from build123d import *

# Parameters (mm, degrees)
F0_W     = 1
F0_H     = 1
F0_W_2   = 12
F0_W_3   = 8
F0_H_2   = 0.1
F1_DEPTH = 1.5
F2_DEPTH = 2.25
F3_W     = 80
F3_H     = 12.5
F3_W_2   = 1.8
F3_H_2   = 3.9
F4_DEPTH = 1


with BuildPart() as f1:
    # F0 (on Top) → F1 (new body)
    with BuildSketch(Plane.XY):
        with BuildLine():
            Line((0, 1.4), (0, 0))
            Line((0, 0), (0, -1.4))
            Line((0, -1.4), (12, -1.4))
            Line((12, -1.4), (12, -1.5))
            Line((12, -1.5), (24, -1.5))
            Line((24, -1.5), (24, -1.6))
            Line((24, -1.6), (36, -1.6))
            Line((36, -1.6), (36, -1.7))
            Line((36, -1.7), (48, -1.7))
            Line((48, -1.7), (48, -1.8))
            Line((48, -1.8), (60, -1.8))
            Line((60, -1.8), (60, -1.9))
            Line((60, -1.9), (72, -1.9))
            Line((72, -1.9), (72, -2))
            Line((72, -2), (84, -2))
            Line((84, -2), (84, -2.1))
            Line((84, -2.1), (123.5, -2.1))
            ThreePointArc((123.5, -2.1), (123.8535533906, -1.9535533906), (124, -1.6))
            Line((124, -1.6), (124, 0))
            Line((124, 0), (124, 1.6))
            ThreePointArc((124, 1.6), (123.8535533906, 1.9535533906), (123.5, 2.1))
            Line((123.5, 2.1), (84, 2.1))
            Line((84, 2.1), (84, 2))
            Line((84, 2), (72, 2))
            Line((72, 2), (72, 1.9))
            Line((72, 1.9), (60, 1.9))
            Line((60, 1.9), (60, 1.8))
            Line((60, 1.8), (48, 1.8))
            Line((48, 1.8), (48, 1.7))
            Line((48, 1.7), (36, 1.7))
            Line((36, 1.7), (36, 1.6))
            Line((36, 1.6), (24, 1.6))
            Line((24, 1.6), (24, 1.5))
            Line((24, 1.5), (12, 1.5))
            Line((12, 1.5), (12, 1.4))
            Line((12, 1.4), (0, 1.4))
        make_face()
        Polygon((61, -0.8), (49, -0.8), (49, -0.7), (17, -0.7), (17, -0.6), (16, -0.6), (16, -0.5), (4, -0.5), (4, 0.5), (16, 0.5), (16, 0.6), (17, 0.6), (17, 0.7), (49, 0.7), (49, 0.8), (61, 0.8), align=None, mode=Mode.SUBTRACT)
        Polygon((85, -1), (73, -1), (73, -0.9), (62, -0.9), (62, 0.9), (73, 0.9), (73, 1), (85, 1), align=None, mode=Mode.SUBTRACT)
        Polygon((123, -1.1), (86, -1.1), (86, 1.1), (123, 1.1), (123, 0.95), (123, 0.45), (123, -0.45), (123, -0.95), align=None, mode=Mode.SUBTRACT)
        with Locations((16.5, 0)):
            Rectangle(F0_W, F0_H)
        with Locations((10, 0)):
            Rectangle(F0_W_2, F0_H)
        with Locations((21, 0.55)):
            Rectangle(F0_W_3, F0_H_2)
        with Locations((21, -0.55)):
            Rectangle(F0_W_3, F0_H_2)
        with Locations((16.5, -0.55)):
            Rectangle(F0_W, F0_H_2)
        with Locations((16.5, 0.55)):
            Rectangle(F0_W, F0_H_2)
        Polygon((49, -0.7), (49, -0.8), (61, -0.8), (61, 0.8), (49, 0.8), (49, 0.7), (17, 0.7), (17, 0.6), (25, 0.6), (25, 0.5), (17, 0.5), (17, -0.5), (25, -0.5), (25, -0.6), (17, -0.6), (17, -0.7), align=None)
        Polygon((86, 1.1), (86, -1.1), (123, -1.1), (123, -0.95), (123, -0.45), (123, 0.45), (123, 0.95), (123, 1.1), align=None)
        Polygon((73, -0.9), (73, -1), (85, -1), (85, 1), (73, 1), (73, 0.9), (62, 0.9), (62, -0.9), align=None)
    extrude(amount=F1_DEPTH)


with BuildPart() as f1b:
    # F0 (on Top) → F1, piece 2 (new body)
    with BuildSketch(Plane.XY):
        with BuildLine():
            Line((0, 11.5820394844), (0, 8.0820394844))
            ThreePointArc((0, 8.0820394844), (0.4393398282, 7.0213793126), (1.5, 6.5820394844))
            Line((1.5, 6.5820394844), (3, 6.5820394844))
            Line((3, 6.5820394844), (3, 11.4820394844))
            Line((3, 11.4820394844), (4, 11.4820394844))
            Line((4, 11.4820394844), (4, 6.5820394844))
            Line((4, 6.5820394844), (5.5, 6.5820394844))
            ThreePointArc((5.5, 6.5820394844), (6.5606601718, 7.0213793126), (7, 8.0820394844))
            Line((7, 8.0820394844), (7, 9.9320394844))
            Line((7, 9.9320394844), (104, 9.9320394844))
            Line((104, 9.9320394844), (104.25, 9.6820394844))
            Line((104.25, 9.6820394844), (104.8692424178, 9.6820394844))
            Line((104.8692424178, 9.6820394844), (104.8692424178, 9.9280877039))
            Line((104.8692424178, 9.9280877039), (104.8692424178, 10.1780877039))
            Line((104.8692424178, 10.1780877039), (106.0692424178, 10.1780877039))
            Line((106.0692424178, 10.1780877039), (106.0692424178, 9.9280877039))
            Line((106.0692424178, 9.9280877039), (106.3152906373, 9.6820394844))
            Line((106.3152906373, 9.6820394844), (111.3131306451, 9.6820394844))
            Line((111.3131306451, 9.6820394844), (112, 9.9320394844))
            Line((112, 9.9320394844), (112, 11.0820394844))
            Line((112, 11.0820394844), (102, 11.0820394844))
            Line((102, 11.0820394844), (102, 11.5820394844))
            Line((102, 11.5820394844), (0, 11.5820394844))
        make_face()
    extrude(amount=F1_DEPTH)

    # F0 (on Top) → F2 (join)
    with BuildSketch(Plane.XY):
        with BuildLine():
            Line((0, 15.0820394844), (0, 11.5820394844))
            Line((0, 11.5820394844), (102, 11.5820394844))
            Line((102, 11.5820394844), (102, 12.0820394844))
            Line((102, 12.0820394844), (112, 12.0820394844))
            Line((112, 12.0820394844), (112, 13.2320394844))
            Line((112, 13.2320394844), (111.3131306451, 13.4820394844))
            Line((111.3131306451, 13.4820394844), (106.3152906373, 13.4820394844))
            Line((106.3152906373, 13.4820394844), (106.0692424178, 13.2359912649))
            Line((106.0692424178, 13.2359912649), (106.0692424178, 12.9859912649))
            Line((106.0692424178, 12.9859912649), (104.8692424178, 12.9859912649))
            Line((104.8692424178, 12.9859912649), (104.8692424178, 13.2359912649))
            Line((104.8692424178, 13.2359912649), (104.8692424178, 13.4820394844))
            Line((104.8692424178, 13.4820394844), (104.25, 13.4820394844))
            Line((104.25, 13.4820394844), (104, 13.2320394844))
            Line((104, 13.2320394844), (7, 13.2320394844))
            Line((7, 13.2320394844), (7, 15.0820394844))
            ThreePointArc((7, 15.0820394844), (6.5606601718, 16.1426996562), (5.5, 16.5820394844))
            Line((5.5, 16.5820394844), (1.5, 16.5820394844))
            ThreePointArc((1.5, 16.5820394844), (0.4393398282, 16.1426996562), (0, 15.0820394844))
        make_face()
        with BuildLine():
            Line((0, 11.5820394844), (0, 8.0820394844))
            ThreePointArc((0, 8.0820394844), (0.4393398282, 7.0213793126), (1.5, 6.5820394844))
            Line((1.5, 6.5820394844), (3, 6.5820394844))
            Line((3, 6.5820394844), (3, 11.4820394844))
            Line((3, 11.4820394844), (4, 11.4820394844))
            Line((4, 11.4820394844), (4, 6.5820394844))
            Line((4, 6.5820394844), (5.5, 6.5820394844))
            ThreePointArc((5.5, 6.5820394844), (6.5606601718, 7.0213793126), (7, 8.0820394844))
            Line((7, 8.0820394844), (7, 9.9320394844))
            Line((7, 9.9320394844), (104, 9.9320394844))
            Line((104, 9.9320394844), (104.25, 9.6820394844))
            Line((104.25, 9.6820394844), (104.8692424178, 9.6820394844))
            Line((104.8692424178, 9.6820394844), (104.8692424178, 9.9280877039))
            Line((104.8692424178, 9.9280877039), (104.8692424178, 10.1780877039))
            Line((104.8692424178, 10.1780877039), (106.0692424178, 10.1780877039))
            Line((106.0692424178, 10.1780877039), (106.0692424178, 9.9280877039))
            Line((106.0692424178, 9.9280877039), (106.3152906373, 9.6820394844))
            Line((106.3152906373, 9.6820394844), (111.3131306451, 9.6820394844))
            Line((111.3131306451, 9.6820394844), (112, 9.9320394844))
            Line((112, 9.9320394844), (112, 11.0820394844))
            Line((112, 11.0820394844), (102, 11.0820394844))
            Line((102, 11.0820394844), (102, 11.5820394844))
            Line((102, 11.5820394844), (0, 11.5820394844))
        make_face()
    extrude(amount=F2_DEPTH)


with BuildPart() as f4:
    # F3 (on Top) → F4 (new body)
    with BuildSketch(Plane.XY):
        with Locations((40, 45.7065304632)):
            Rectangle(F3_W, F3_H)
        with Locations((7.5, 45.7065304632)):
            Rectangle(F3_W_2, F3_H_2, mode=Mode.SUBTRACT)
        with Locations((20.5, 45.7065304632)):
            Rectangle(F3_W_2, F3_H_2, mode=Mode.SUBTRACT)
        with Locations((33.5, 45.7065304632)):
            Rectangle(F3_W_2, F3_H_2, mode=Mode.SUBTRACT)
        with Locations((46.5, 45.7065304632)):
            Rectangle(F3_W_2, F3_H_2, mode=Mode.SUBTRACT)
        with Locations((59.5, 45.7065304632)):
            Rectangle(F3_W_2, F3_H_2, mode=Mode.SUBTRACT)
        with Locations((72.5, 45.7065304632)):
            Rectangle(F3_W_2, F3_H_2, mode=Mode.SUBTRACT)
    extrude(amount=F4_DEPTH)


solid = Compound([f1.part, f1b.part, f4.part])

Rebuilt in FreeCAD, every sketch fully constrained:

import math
import FreeCAD as App
import Part
import Sketcher
Q = App.Units.Quantity


def add_polygon(sketch, points):
    """Adds a closed chain of lines whose ends are joined by coincident constraints."""
    first, n = sketch.GeometryCount, len(points)
    for a, b in zip(points, points[1:] + points[:1]):
        sketch.addGeometry(Part.LineSegment(App.Vector(*a, 0), App.Vector(*b, 0)), False)
    for i in range(n):
        sketch.addConstraint(Sketcher.Constraint("Coincident", first + i, 2, first + (i + 1) % n, 1))

doc = App.newDocument("Part")
body = doc.addObject("PartDesign::Body", "Body")

# Sketch on XY plane
sketch1 = body.newObject("Sketcher::SketchObject", "Sketch")
sketch1.AttachmentSupport = (doc.getObject("XY_Plane"), [""])
sketch1.MapMode = "FlatFace"
sketch1.addGeometry(Part.LineSegment(App.Vector(0, 1.4, 0), App.Vector(0, -1.4, 0)), False)
sketch1.addGeometry(Part.LineSegment(App.Vector(0, -1.4, 0), App.Vector(12, -1.4, 0)), False)
sketch1.addGeometry(Part.LineSegment(App.Vector(12, -1.4, 0), App.Vector(12, -1.5, 0)), False)
sketch1.addGeometry(Part.LineSegment(App.Vector(12, -1.5, 0), App.Vector(24, -1.5, 0)), False)
sketch1.addGeometry(Part.LineSegment(App.Vector(24, -1.5, 0), App.Vector(24, -1.6, 0)), False)
sketch1.addGeometry(Part.LineSegment(App.Vector(24, -1.6, 0), App.Vector(36, -1.6, 0)), False)
sketch1.addGeometry(Part.LineSegment(App.Vector(36, -1.6, 0), App.Vector(36, -1.7, 0)), False)
sketch1.addGeometry(Part.LineSegment(App.Vector(36, -1.7, 0), App.Vector(48, -1.7, 0)), False)
sketch1.addGeometry(Part.LineSegment(App.Vector(48, -1.7, 0), App.Vector(48, -1.8, 0)), False)
sketch1.addGeometry(Part.LineSegment(App.Vector(48, -1.8, 0), App.Vector(60, -1.8, 0)), False)
sketch1.addGeometry(Part.LineSegment(App.Vector(60, -1.8, 0), App.Vector(60, -1.9, 0)), False)
sketch1.addGeometry(Part.LineSegment(App.Vector(60, -1.9, 0), App.Vector(72, -1.9, 0)), False)
sketch1.addGeometry(Part.LineSegment(App.Vector(72, -1.9, 0), App.Vector(72, -2, 0)), False)
sketch1.addGeometry(Part.LineSegment(App.Vector(72, -2, 0), App.Vector(84, -2, 0)), False)
sketch1.addGeometry(Part.LineSegment(App.Vector(84, -2, 0), App.Vector(84, -2.1, 0)), False)
sketch1.addGeometry(Part.LineSegment(App.Vector(84, -2.1, 0), App.Vector(123.5, -2.1, 0)), False)
sketch1.addGeometry(Part.ArcOfCircle(Part.Circle(App.Vector(123.5, -1.6, 0), App.Vector(0, 0, 1), 0.5), math.radians(-90), math.radians(0)), False)
sketch1.addGeometry(Part.LineSegment(App.Vector(124, -1.6, 0), App.Vector(124, 1.6, 0)), False)
sketch1.addGeometry(Part.ArcOfCircle(Part.Circle(App.Vector(123.5, 1.6, 0), App.Vector(0, 0, 1), 0.5), math.radians(0), math.radians(90)), False)
sketch1.addGeometry(Part.LineSegment(App.Vector(123.5, 2.1, 0), App.Vector(84, 2.1, 0)), False)
sketch1.addGeometry(Part.LineSegment(App.Vector(84, 2.1, 0), App.Vector(84, 2, 0)), False)
sketch1.addGeometry(Part.LineSegment(App.Vector(84, 2, 0), App.Vector(72, 2, 0)), False)
sketch1.addGeometry(Part.LineSegment(App.Vector(72, 2, 0), App.Vector(72, 1.9, 0)), False)
sketch1.addGeometry(Part.LineSegment(App.Vector(72, 1.9, 0), App.Vector(60, 1.9, 0)), False)
sketch1.addGeometry(Part.LineSegment(App.Vector(60, 1.9, 0), App.Vector(60, 1.8, 0)), False)
sketch1.addGeometry(Part.LineSegment(App.Vector(60, 1.8, 0), App.Vector(48, 1.8, 0)), False)
sketch1.addGeometry(Part.LineSegment(App.Vector(48, 1.8, 0), App.Vector(48, 1.7, 0)), False)
sketch1.addGeometry(Part.LineSegment(App.Vector(48, 1.7, 0), App.Vector(36, 1.7, 0)), False)
sketch1.addGeometry(Part.LineSegment(App.Vector(36, 1.7, 0), App.Vector(36, 1.6, 0)), False)
sketch1.addGeometry(Part.LineSegment(App.Vector(36, 1.6, 0), App.Vector(24, 1.6, 0)), False)
sketch1.addGeometry(Part.LineSegment(App.Vector(24, 1.6, 0), App.Vector(24, 1.5, 0)), False)
sketch1.addGeometry(Part.LineSegment(App.Vector(24, 1.5, 0), App.Vector(12, 1.5, 0)), False)
sketch1.addGeometry(Part.LineSegment(App.Vector(12, 1.5, 0), App.Vector(12, 1.4, 0)), False)
sketch1.addGeometry(Part.LineSegment(App.Vector(12, 1.4, 0), App.Vector(0, 1.4, 0)), False)
sketch1.addConstraint(Sketcher.Constraint("Coincident", 0, 2, 1, 1))
sketch1.addConstraint(Sketcher.Constraint("Coincident", 1, 2, 2, 1))
sketch1.addConstraint(Sketcher.Constraint("Coincident", 2, 2, 3, 1))
sketch1.addConstraint(Sketcher.Constraint("Coincident", 3, 2, 4, 1))
sketch1.addConstraint(Sketcher.Constraint("Coincident", 4, 2, 5, 1))
sketch1.addConstraint(Sketcher.Constraint("Coincident", 5, 2, 6, 1))
sketch1.addConstraint(Sketcher.Constraint("Coincident", 6, 2, 7, 1))
sketch1.addConstraint(Sketcher.Constraint("Coincident", 7, 2, 8, 1))
sketch1.addConstraint(Sketcher.Constraint("Coincident", 8, 2, 9, 1))
sketch1.addConstraint(Sketcher.Constraint("Coincident", 9, 2, 10, 1))
sketch1.addConstraint(Sketcher.Constraint("Coincident", 10, 2, 11, 1))
sketch1.addConstraint(Sketcher.Constraint("Coincident", 11, 2, 12, 1))
sketch1.addConstraint(Sketcher.Constraint("Coincident", 12, 2, 13, 1))
sketch1.addConstraint(Sketcher.Constraint("Coincident", 13, 2, 14, 1))
sketch1.addConstraint(Sketcher.Constraint("Coincident", 14, 2, 15, 1))
sketch1.addConstraint(Sketcher.Constraint("Tangent", 15, 2, 16, 1))
sketch1.addConstraint(Sketcher.Constraint("Tangent", 16, 2, 17, 1))
sketch1.addConstraint(Sketcher.Constraint("Tangent", 17, 2, 18, 1))
sketch1.addConstraint(Sketcher.Constraint("Tangent", 18, 2, 19, 1))
sketch1.addConstraint(Sketcher.Constraint("Coincident", 19, 2, 20, 1))
sketch1.addConstraint(Sketcher.Constraint("Coincident", 20, 2, 21, 1))
sketch1.addConstraint(Sketcher.Constraint("Coincident", 21, 2, 22, 1))
sketch1.addConstraint(Sketcher.Constraint("Coincident", 22, 2, 23, 1))
sketch1.addConstraint(Sketcher.Constraint("Coincident", 23, 2, 24, 1))
sketch1.addConstraint(Sketcher.Constraint("Coincident", 24, 2, 25, 1))
sketch1.addConstraint(Sketcher.Constraint("Coincident", 25, 2, 26, 1))
sketch1.addConstraint(Sketcher.Constraint("Coincident", 26, 2, 27, 1))
sketch1.addConstraint(Sketcher.Constraint("Coincident", 27, 2, 28, 1))
sketch1.addConstraint(Sketcher.Constraint("Coincident", 28, 2, 29, 1))
sketch1.addConstraint(Sketcher.Constraint("Coincident", 29, 2, 30, 1))
sketch1.addConstraint(Sketcher.Constraint("Coincident", 30, 2, 31, 1))
sketch1.addConstraint(Sketcher.Constraint("Coincident", 31, 2, 32, 1))
sketch1.addConstraint(Sketcher.Constraint("Coincident", 32, 2, 33, 1))
sketch1.addConstraint(Sketcher.Constraint("Coincident", 33, 2, 0, 1))
sketch1.addConstraint(Sketcher.Constraint("Vertical", 0))
sketch1.addConstraint(Sketcher.Constraint("Horizontal", 1))
sketch1.addConstraint(Sketcher.Constraint("Vertical", 2))
sketch1.addConstraint(Sketcher.Constraint("Horizontal", 3))
sketch1.addConstraint(Sketcher.Constraint("Vertical", 4))
sketch1.addConstraint(Sketcher.Constraint("Horizontal", 5))
sketch1.addConstraint(Sketcher.Constraint("Vertical", 6))
sketch1.addConstraint(Sketcher.Constraint("Horizontal", 7))
sketch1.addConstraint(Sketcher.Constraint("Vertical", 8))
sketch1.addConstraint(Sketcher.Constraint("Horizontal", 9))
sketch1.addConstraint(Sketcher.Constraint("Vertical", 10))
sketch1.addConstraint(Sketcher.Constraint("Horizontal", 11))
sketch1.addConstraint(Sketcher.Constraint("Vertical", 12))
sketch1.addConstraint(Sketcher.Constraint("Horizontal", 13))
sketch1.addConstraint(Sketcher.Constraint("Vertical", 14))
sketch1.addConstraint(Sketcher.Constraint("Horizontal", 15))
sketch1.addConstraint(Sketcher.Constraint("Vertical", 17))
sketch1.addConstraint(Sketcher.Constraint("Horizontal", 19))
sketch1.addConstraint(Sketcher.Constraint("Vertical", 20))
sketch1.addConstraint(Sketcher.Constraint("Horizontal", 21))
sketch1.addConstraint(Sketcher.Constraint("Vertical", 22))
sketch1.addConstraint(Sketcher.Constraint("Horizontal", 23))
sketch1.addConstraint(Sketcher.Constraint("Vertical", 24))
sketch1.addConstraint(Sketcher.Constraint("Horizontal", 25))
sketch1.addConstraint(Sketcher.Constraint("Vertical", 26))
sketch1.addConstraint(Sketcher.Constraint("Horizontal", 27))
sketch1.addConstraint(Sketcher.Constraint("Vertical", 28))
sketch1.addConstraint(Sketcher.Constraint("Horizontal", 29))
sketch1.addConstraint(Sketcher.Constraint("Vertical", 30))
sketch1.addConstraint(Sketcher.Constraint("Horizontal", 31))
sketch1.addConstraint(Sketcher.Constraint("Vertical", 32))
sketch1.addConstraint(Sketcher.Constraint("Horizontal", 33))
sketch1.addConstraint(Sketcher.Constraint("Equal", 16, 18))
sketch1.addConstraint(Sketcher.Constraint("Symmetric", 0, 2, 33, 2, -1, 1))
sketch1.addConstraint(Sketcher.Constraint("Symmetric", 14, 2, 19, 2, -1))
sketch1.addConstraint(Sketcher.Constraint("Symmetric", 12, 2, 21, 2, -1))
sketch1.addConstraint(Sketcher.Constraint("Symmetric", 10, 2, 23, 2, -1))
sketch1.addConstraint(Sketcher.Constraint("Symmetric", 8, 2, 25, 2, -1))
sketch1.addConstraint(Sketcher.Constraint("Symmetric", 6, 2, 27, 2, -1))
sketch1.addConstraint(Sketcher.Constraint("Symmetric", 4, 2, 29, 2, -1))
sketch1.addConstraint(Sketcher.Constraint("Symmetric", 2, 2, 31, 2, -1))
sketch1.addConstraint(Sketcher.Constraint("Horizontal", 16, 3, 4, 2))
sketch1.addConstraint(Sketcher.Constraint("Equal", 1, 3))
sketch1.addConstraint(Sketcher.Constraint("Equal", 3, 5))
sketch1.addConstraint(Sketcher.Constraint("Equal", 5, 7))
sketch1.addConstraint(Sketcher.Constraint("Equal", 7, 9))
sketch1.addConstraint(Sketcher.Constraint("Equal", 9, 11))
sketch1.addConstraint(Sketcher.Constraint("Equal", 11, 13))
sketch1.addConstraint(Sketcher.Constraint("Equal", 2, 4))
sketch1.addConstraint(Sketcher.Constraint("Equal", 4, 6))
sketch1.addConstraint(Sketcher.Constraint("Equal", 6, 8))
sketch1.addConstraint(Sketcher.Constraint("Equal", 8, 10))
sketch1.addConstraint(Sketcher.Constraint("Equal", 10, 12))
sketch1.addConstraint(Sketcher.Constraint("Equal", 12, 14))
sketch1.addConstraint(Sketcher.Constraint("Radius", 16, 0.5))
sketch1.addConstraint(Sketcher.Constraint("DistanceX", 1, 1, 1, 2, 12.0))
sketch1.addConstraint(Sketcher.Constraint("DistanceX", 15, 1, 15, 2, 39.5))
sketch1.addConstraint(Sketcher.Constraint("DistanceY", 0, 2, 0, 1, 2.8))
pad1 = body.newObject("PartDesign::Pad", "Pad")
pad1.Profile = sketch1
pad1.Length = 1.5
body2 = doc.addObject("PartDesign::Body", "Body001")

# Sketch on XY plane
sketch2 = body2.newObject("Sketcher::SketchObject", "Sketch001")
sketch2.AttachmentSupport = (doc.getObject("XY_Plane001"), [""])
sketch2.MapMode = "FlatFace"
sketch2.addGeometry(Part.LineSegment(App.Vector(0, 11.582039, 0), App.Vector(0, 8.082039, 0)), False)
sketch2.addGeometry(Part.ArcOfCircle(Part.Circle(App.Vector(1.5, 8.082039, 0), App.Vector(0, 0, 1), 1.5), math.radians(180), math.radians(270)), False)
sketch2.addGeometry(Part.LineSegment(App.Vector(1.5, 6.582039, 0), App.Vector(3, 6.582039, 0)), False)
sketch2.addGeometry(Part.LineSegment(App.Vector(3, 6.582039, 0), App.Vector(3, 11.482039, 0)), False)
sketch2.addGeometry(Part.LineSegment(App.Vector(3, 11.482039, 0), App.Vector(4, 11.482039, 0)), False)
sketch2.addGeometry(Part.LineSegment(App.Vector(4, 11.482039, 0), App.Vector(4, 6.582039, 0)), False)
sketch2.addGeometry(Part.LineSegment(App.Vector(4, 6.582039, 0), App.Vector(5.5, 6.582039, 0)), False)
sketch2.addGeometry(Part.ArcOfCircle(Part.Circle(App.Vector(5.5, 8.082039, 0), App.Vector(0, 0, 1), 1.5), math.radians(-90), math.radians(0)), False)
sketch2.addGeometry(Part.LineSegment(App.Vector(7, 8.082039, 0), App.Vector(7, 9.932039, 0)), False)
sketch2.addGeometry(Part.LineSegment(App.Vector(7, 9.932039, 0), App.Vector(104, 9.932039, 0)), False)
sketch2.addGeometry(Part.LineSegment(App.Vector(104, 9.932039, 0), App.Vector(104.25, 9.682039, 0)), False)
sketch2.addGeometry(Part.LineSegment(App.Vector(104.25, 9.682039, 0), App.Vector(104.869242, 9.682039, 0)), False)
sketch2.addGeometry(Part.LineSegment(App.Vector(104.869242, 9.682039, 0), App.Vector(104.869242, 10.178088, 0)), False)
sketch2.addGeometry(Part.LineSegment(App.Vector(104.869242, 10.178088, 0), App.Vector(106.069242, 10.178088, 0)), False)
sketch2.addGeometry(Part.LineSegment(App.Vector(106.069242, 10.178088, 0), App.Vector(106.069242, 9.928088, 0)), False)
sketch2.addGeometry(Part.LineSegment(App.Vector(106.069242, 9.928088, 0), App.Vector(106.315291, 9.682039, 0)), False)
sketch2.addGeometry(Part.LineSegment(App.Vector(106.315291, 9.682039, 0), App.Vector(111.313131, 9.682039, 0)), False)
sketch2.addGeometry(Part.LineSegment(App.Vector(111.313131, 9.682039, 0), App.Vector(112, 9.932039, 0)), False)
sketch2.addGeometry(Part.LineSegment(App.Vector(112, 9.932039, 0), App.Vector(112, 11.082039, 0)), False)
sketch2.addGeometry(Part.LineSegment(App.Vector(112, 11.082039, 0), App.Vector(102, 11.082039, 0)), False)
sketch2.addGeometry(Part.LineSegment(App.Vector(102, 11.082039, 0), App.Vector(102, 11.582039, 0)), False)
sketch2.addGeometry(Part.LineSegment(App.Vector(102, 11.582039, 0), App.Vector(0, 11.582039, 0)), False)
sketch2.addConstraint(Sketcher.Constraint("Tangent", 0, 2, 1, 1))
sketch2.addConstraint(Sketcher.Constraint("Tangent", 1, 2, 2, 1))
sketch2.addConstraint(Sketcher.Constraint("Coincident", 2, 2, 3, 1))
sketch2.addConstraint(Sketcher.Constraint("Coincident", 3, 2, 4, 1))
sketch2.addConstraint(Sketcher.Constraint("Coincident", 4, 2, 5, 1))
sketch2.addConstraint(Sketcher.Constraint("Coincident", 5, 2, 6, 1))
sketch2.addConstraint(Sketcher.Constraint("Tangent", 6, 2, 7, 1))
sketch2.addConstraint(Sketcher.Constraint("Tangent", 7, 2, 8, 1))
sketch2.addConstraint(Sketcher.Constraint("Coincident", 8, 2, 9, 1))
sketch2.addConstraint(Sketcher.Constraint("Coincident", 9, 2, 10, 1))
sketch2.addConstraint(Sketcher.Constraint("Coincident", 10, 2, 11, 1))
sketch2.addConstraint(Sketcher.Constraint("Coincident", 11, 2, 12, 1))
sketch2.addConstraint(Sketcher.Constraint("Coincident", 12, 2, 13, 1))
sketch2.addConstraint(Sketcher.Constraint("Coincident", 13, 2, 14, 1))
sketch2.addConstraint(Sketcher.Constraint("Coincident", 14, 2, 15, 1))
sketch2.addConstraint(Sketcher.Constraint("Coincident", 15, 2, 16, 1))
sketch2.addConstraint(Sketcher.Constraint("Coincident", 16, 2, 17, 1))
sketch2.addConstraint(Sketcher.Constraint("Coincident", 17, 2, 18, 1))
sketch2.addConstraint(Sketcher.Constraint("Coincident", 18, 2, 19, 1))
sketch2.addConstraint(Sketcher.Constraint("Coincident", 19, 2, 20, 1))
sketch2.addConstraint(Sketcher.Constraint("Coincident", 20, 2, 21, 1))
sketch2.addConstraint(Sketcher.Constraint("Coincident", 21, 2, 0, 1))
sketch2.addConstraint(Sketcher.Constraint("Vertical", 0))
sketch2.addConstraint(Sketcher.Constraint("Horizontal", 2))
sketch2.addConstraint(Sketcher.Constraint("Vertical", 3))
sketch2.addConstraint(Sketcher.Constraint("Horizontal", 4))
sketch2.addConstraint(Sketcher.Constraint("Vertical", 5))
sketch2.addConstraint(Sketcher.Constraint("Horizontal", 6))
sketch2.addConstraint(Sketcher.Constraint("Vertical", 8))
sketch2.addConstraint(Sketcher.Constraint("Horizontal", 9))
sketch2.addConstraint(Sketcher.Constraint("Horizontal", 11))
sketch2.addConstraint(Sketcher.Constraint("Vertical", 12))
sketch2.addConstraint(Sketcher.Constraint("Horizontal", 13))
sketch2.addConstraint(Sketcher.Constraint("Vertical", 14))
sketch2.addConstraint(Sketcher.Constraint("Horizontal", 16))
sketch2.addConstraint(Sketcher.Constraint("Vertical", 18))
sketch2.addConstraint(Sketcher.Constraint("Horizontal", 19))
sketch2.addConstraint(Sketcher.Constraint("Vertical", 20))
sketch2.addConstraint(Sketcher.Constraint("Horizontal", 21))
sketch2.addConstraint(Sketcher.Constraint("Equal", 1, 7))
sketch2.addConstraint(Sketcher.Constraint("PointOnObject", 0, 2, -2))
sketch2.addConstraint(Sketcher.Constraint("Parallel", 10, 15))
sketch2.addConstraint(Sketcher.Constraint("Horizontal", 1, 3, 7, 3))
sketch2.addConstraint(Sketcher.Constraint("Horizontal", 11, 2, 15, 2))
sketch2.addConstraint(Sketcher.Constraint("Horizontal", 9, 2, 17, 2))
sketch2.addConstraint(Sketcher.Constraint("Equal", 2, 6))
sketch2.addConstraint(Sketcher.Constraint("Radius", 1, 1.5))
sketch2.addConstraint(Sketcher.Constraint("DistanceX", 4, 1, 4, 2, 1.0))
sketch2.addConstraint(Sketcher.Constraint("DistanceX", 9, 1, 9, 2, 97.0))
sketch2.addConstraint(Sketcher.Constraint("DistanceX", 19, 2, 19, 1, 10.0))
sketch2.addConstraint(Sketcher.Constraint("DistanceX", 21, 2, 21, 1, 102.0))
sketch2.addConstraint(Sketcher.Constraint("Angle", 10, Q("-45 deg")))
sketch2.addConstraint(Sketcher.Constraint("Angle", 17, Q("20 deg")))
sketch2.addConstraint(Sketcher.Constraint("DistanceX", 2, 1, 2, 2, 1.5))
sketch2.addConstraint(Sketcher.Constraint("DistanceX", 13, 1, 13, 2, 1.2))
sketch2.addConstraint(Sketcher.Constraint("DistanceY", 0, 2, 0, 1, 3.5))
sketch2.addConstraint(Sketcher.Constraint("DistanceY", 3, 1, 3, 2, 4.9))
sketch2.addConstraint(Sketcher.Constraint("DistanceY", 20, 1, 20, 2, 0.5))
sketch2.addConstraint(Sketcher.Constraint("DistanceY", 8, 1, 8, 2, 1.85))
sketch2.addConstraint(Sketcher.Constraint("DistanceY", 14, 2, 14, 1, 0.25))
sketch2.addConstraint(Sketcher.Constraint("DistanceY", 7, 2, 10, 2, 1.6))
sketch2.addConstraint(Sketcher.Constraint("DistanceX", 16, 1, 16, 2, 4.99784))
sketch2.addConstraint(Sketcher.Constraint("DistanceY", 12, 1, 12, 2, 0.496048))
sketch2.addConstraint(Sketcher.Constraint("DistanceY", -1, 1, 1, 3, 8.082039))
pad2 = body2.newObject("PartDesign::Pad", "Pad001")
pad2.Profile = sketch2
pad2.Length = 1.5

# Sketch on XY plane
sketch3 = body2.newObject("Sketcher::SketchObject", "Sketch002")
sketch3.AttachmentSupport = (doc.getObject("XY_Plane001"), [""])
sketch3.MapMode = "FlatFace"
sketch3.addGeometry(Part.LineSegment(App.Vector(0, 15.082039, 0), App.Vector(0, 8.082039, 0)), False)
sketch3.addGeometry(Part.ArcOfCircle(Part.Circle(App.Vector(1.5, 8.082039, 0), App.Vector(0, 0, 1), 1.5), math.radians(180), math.radians(270)), False)
sketch3.addGeometry(Part.LineSegment(App.Vector(1.5, 6.582039, 0), App.Vector(3, 6.582039, 0)), False)
sketch3.addGeometry(Part.LineSegment(App.Vector(3, 6.582039, 0), App.Vector(3, 11.482039, 0)), False)
sketch3.addGeometry(Part.LineSegment(App.Vector(3, 11.482039, 0), App.Vector(4, 11.482039, 0)), False)
sketch3.addGeometry(Part.LineSegment(App.Vector(4, 11.482039, 0), App.Vector(4, 6.582039, 0)), False)
sketch3.addGeometry(Part.LineSegment(App.Vector(4, 6.582039, 0), App.Vector(5.5, 6.582039, 0)), False)
sketch3.addGeometry(Part.ArcOfCircle(Part.Circle(App.Vector(5.5, 8.082039, 0), App.Vector(0, 0, 1), 1.5), math.radians(-90), math.radians(0)), False)
sketch3.addGeometry(Part.LineSegment(App.Vector(7, 8.082039, 0), App.Vector(7, 9.932039, 0)), False)
sketch3.addGeometry(Part.LineSegment(App.Vector(7, 9.932039, 0), App.Vector(104, 9.932039, 0)), False)
sketch3.addGeometry(Part.LineSegment(App.Vector(104, 9.932039, 0), App.Vector(104.25, 9.682039, 0)), False)
sketch3.addGeometry(Part.LineSegment(App.Vector(104.25, 9.682039, 0), App.Vector(104.869242, 9.682039, 0)), False)
sketch3.addGeometry(Part.LineSegment(App.Vector(104.869242, 9.682039, 0), App.Vector(104.869242, 10.178088, 0)), False)
sketch3.addGeometry(Part.LineSegment(App.Vector(104.869242, 10.178088, 0), App.Vector(106.069242, 10.178088, 0)), False)
sketch3.addGeometry(Part.LineSegment(App.Vector(106.069242, 10.178088, 0), App.Vector(106.069242, 9.928088, 0)), False)
sketch3.addGeometry(Part.LineSegment(App.Vector(106.069242, 9.928088, 0), App.Vector(106.315291, 9.682039, 0)), False)
sketch3.addGeometry(Part.LineSegment(App.Vector(106.315291, 9.682039, 0), App.Vector(111.313131, 9.682039, 0)), False)
sketch3.addGeometry(Part.LineSegment(App.Vector(111.313131, 9.682039, 0), App.Vector(112, 9.932039, 0)), False)
sketch3.addGeometry(Part.LineSegment(App.Vector(112, 9.932039, 0), App.Vector(112, 11.082039, 0)), False)
sketch3.addGeometry(Part.LineSegment(App.Vector(112, 11.082039, 0), App.Vector(102, 11.082039, 0)), False)
sketch3.addGeometry(Part.LineSegment(App.Vector(102, 11.082039, 0), App.Vector(102, 12.082039, 0)), False)
sketch3.addGeometry(Part.LineSegment(App.Vector(102, 12.082039, 0), App.Vector(112, 12.082039, 0)), False)
sketch3.addGeometry(Part.LineSegment(App.Vector(112, 12.082039, 0), App.Vector(112, 13.232039, 0)), False)
sketch3.addGeometry(Part.LineSegment(App.Vector(112, 13.232039, 0), App.Vector(111.313131, 13.482039, 0)), False)
sketch3.addGeometry(Part.LineSegment(App.Vector(111.313131, 13.482039, 0), App.Vector(106.315291, 13.482039, 0)), False)
sketch3.addGeometry(Part.LineSegment(App.Vector(106.315291, 13.482039, 0), App.Vector(106.069242, 13.235991, 0)), False)
sketch3.addGeometry(Part.LineSegment(App.Vector(106.069242, 13.235991, 0), App.Vector(106.069242, 12.985991, 0)), False)
sketch3.addGeometry(Part.LineSegment(App.Vector(106.069242, 12.985991, 0), App.Vector(104.869242, 12.985991, 0)), False)
sketch3.addGeometry(Part.LineSegment(App.Vector(104.869242, 12.985991, 0), App.Vector(104.869242, 13.482039, 0)), False)
sketch3.addGeometry(Part.LineSegment(App.Vector(104.869242, 13.482039, 0), App.Vector(104.25, 13.482039, 0)), False)
sketch3.addGeometry(Part.LineSegment(App.Vector(104.25, 13.482039, 0), App.Vector(104, 13.232039, 0)), False)
sketch3.addGeometry(Part.LineSegment(App.Vector(104, 13.232039, 0), App.Vector(7, 13.232039, 0)), False)
sketch3.addGeometry(Part.LineSegment(App.Vector(7, 13.232039, 0), App.Vector(7, 15.082039, 0)), False)
sketch3.addGeometry(Part.ArcOfCircle(Part.Circle(App.Vector(5.5, 15.082039, 0), App.Vector(0, 0, 1), 1.5), math.radians(0), math.radians(90)), False)
sketch3.addGeometry(Part.LineSegment(App.Vector(5.5, 16.582039, 0), App.Vector(1.5, 16.582039, 0)), False)
sketch3.addGeometry(Part.ArcOfCircle(Part.Circle(App.Vector(1.5, 15.082039, 0), App.Vector(0, 0, 1), 1.5), math.radians(90), math.radians(180)), False)
sketch3.addConstraint(Sketcher.Constraint("Tangent", 0, 2, 1, 1))
sketch3.addConstraint(Sketcher.Constraint("Tangent", 1, 2, 2, 1))
sketch3.addConstraint(Sketcher.Constraint("Coincident", 2, 2, 3, 1))
sketch3.addConstraint(Sketcher.Constraint("Coincident", 3, 2, 4, 1))
sketch3.addConstraint(Sketcher.Constraint("Coincident", 4, 2, 5, 1))
sketch3.addConstraint(Sketcher.Constraint("Coincident", 5, 2, 6, 1))
sketch3.addConstraint(Sketcher.Constraint("Tangent", 6, 2, 7, 1))
sketch3.addConstraint(Sketcher.Constraint("Tangent", 7, 2, 8, 1))
sketch3.addConstraint(Sketcher.Constraint("Coincident", 8, 2, 9, 1))
sketch3.addConstraint(Sketcher.Constraint("Coincident", 9, 2, 10, 1))
sketch3.addConstraint(Sketcher.Constraint("Coincident", 10, 2, 11, 1))
sketch3.addConstraint(Sketcher.Constraint("Coincident", 11, 2, 12, 1))
sketch3.addConstraint(Sketcher.Constraint("Coincident", 12, 2, 13, 1))
sketch3.addConstraint(Sketcher.Constraint("Coincident", 13, 2, 14, 1))
sketch3.addConstraint(Sketcher.Constraint("Coincident", 14, 2, 15, 1))
sketch3.addConstraint(Sketcher.Constraint("Coincident", 15, 2, 16, 1))
sketch3.addConstraint(Sketcher.Constraint("Coincident", 16, 2, 17, 1))
sketch3.addConstraint(Sketcher.Constraint("Coincident", 17, 2, 18, 1))
sketch3.addConstraint(Sketcher.Constraint("Coincident", 18, 2, 19, 1))
sketch3.addConstraint(Sketcher.Constraint("Coincident", 19, 2, 20, 1))
sketch3.addConstraint(Sketcher.Constraint("Coincident", 20, 2, 21, 1))
sketch3.addConstraint(Sketcher.Constraint("Coincident", 21, 2, 22, 1))
sketch3.addConstraint(Sketcher.Constraint("Coincident", 22, 2, 23, 1))
sketch3.addConstraint(Sketcher.Constraint("Coincident", 23, 2, 24, 1))
sketch3.addConstraint(Sketcher.Constraint("Coincident", 24, 2, 25, 1))
sketch3.addConstraint(Sketcher.Constraint("Coincident", 25, 2, 26, 1))
sketch3.addConstraint(Sketcher.Constraint("Coincident", 26, 2, 27, 1))
sketch3.addConstraint(Sketcher.Constraint("Coincident", 27, 2, 28, 1))
sketch3.addConstraint(Sketcher.Constraint("Coincident", 28, 2, 29, 1))
sketch3.addConstraint(Sketcher.Constraint("Coincident", 29, 2, 30, 1))
sketch3.addConstraint(Sketcher.Constraint("Coincident", 30, 2, 31, 1))
sketch3.addConstraint(Sketcher.Constraint("Coincident", 31, 2, 32, 1))
sketch3.addConstraint(Sketcher.Constraint("Tangent", 32, 2, 33, 1))
sketch3.addConstraint(Sketcher.Constraint("Tangent", 33, 2, 34, 1))
sketch3.addConstraint(Sketcher.Constraint("Tangent", 34, 2, 35, 1))
sketch3.addConstraint(Sketcher.Constraint("Tangent", 35, 2, 0, 1))
sketch3.addConstraint(Sketcher.Constraint("Vertical", 0))
sketch3.addConstraint(Sketcher.Constraint("Horizontal", 2))
sketch3.addConstraint(Sketcher.Constraint("Vertical", 3))
sketch3.addConstraint(Sketcher.Constraint("Horizontal", 4))
sketch3.addConstraint(Sketcher.Constraint("Vertical", 5))
sketch3.addConstraint(Sketcher.Constraint("Horizontal", 6))
sketch3.addConstraint(Sketcher.Constraint("Vertical", 8))
sketch3.addConstraint(Sketcher.Constraint("Horizontal", 9))
sketch3.addConstraint(Sketcher.Constraint("Horizontal", 11))
sketch3.addConstraint(Sketcher.Constraint("Vertical", 12))
sketch3.addConstraint(Sketcher.Constraint("Horizontal", 13))
sketch3.addConstraint(Sketcher.Constraint("Vertical", 14))
sketch3.addConstraint(Sketcher.Constraint("Horizontal", 16))
sketch3.addConstraint(Sketcher.Constraint("Vertical", 18))
sketch3.addConstraint(Sketcher.Constraint("Horizontal", 19))
sketch3.addConstraint(Sketcher.Constraint("Vertical", 20))
sketch3.addConstraint(Sketcher.Constraint("Horizontal", 21))
sketch3.addConstraint(Sketcher.Constraint("Vertical", 22))
sketch3.addConstraint(Sketcher.Constraint("Horizontal", 24))
sketch3.addConstraint(Sketcher.Constraint("Vertical", 26))
sketch3.addConstraint(Sketcher.Constraint("Horizontal", 27))
sketch3.addConstraint(Sketcher.Constraint("Vertical", 28))
sketch3.addConstraint(Sketcher.Constraint("Horizontal", 29))
sketch3.addConstraint(Sketcher.Constraint("Horizontal", 31))
sketch3.addConstraint(Sketcher.Constraint("Vertical", 32))
sketch3.addConstraint(Sketcher.Constraint("Horizontal", 34))
sketch3.addConstraint(Sketcher.Constraint("Equal", 1, 7))
sketch3.addConstraint(Sketcher.Constraint("Equal", 7, 33))
sketch3.addConstraint(Sketcher.Constraint("Equal", 33, 35))
sketch3.addConstraint(Sketcher.Constraint("PointOnObject", 0, 2, -2))
sketch3.addConstraint(Sketcher.Constraint("Parallel", 10, 15))
sketch3.addConstraint(Sketcher.Constraint("Perpendicular", 15, 25))
sketch3.addConstraint(Sketcher.Constraint("Parallel", 25, 30))
sketch3.addConstraint(Sketcher.Constraint("Horizontal", 1, 3, 7, 3))
sketch3.addConstraint(Sketcher.Constraint("Horizontal", 11, 2, 15, 2))
sketch3.addConstraint(Sketcher.Constraint("Horizontal", 9, 2, 17, 2))
sketch3.addConstraint(Sketcher.Constraint("Horizontal", 24, 2, 28, 2))
sketch3.addConstraint(Sketcher.Constraint("Horizontal", 22, 2, 30, 2))
sketch3.addConstraint(Sketcher.Constraint("Vertical", 7, 3, 33, 3))
sketch3.addConstraint(Sketcher.Constraint("Vertical", 18, 2, 21, 2))
sketch3.addConstraint(Sketcher.Constraint("Vertical", 16, 2, 23, 2))
sketch3.addConstraint(Sketcher.Constraint("Vertical", 15, 2, 24, 2))
sketch3.addConstraint(Sketcher.Constraint("Vertical", 14, 2, 25, 2))
sketch3.addConstraint(Sketcher.Constraint("Vertical", 12, 2, 27, 2))
sketch3.addConstraint(Sketcher.Constraint("Vertical", 10, 2, 29, 2))
sketch3.addConstraint(Sketcher.Constraint("Vertical", 9, 2, 30, 2))
sketch3.addConstraint(Sketcher.Constraint("Equal", 2, 6))
sketch3.addConstraint(Sketcher.Constraint("Equal", 4, 20))
sketch3.addConstraint(Sketcher.Constraint("Equal", 18, 22))
sketch3.addConstraint(Sketcher.Constraint("Equal", 14, 26))
sketch3.addConstraint(Sketcher.Constraint("Equal", 12, 28))
sketch3.addConstraint(Sketcher.Constraint("Equal", 8, 32))
sketch3.addConstraint(Sketcher.Constraint("Radius", 1, 1.5))
sketch3.addConstraint(Sketcher.Constraint("DistanceX", 4, 1, 4, 2, 1.0))
sketch3.addConstraint(Sketcher.Constraint("DistanceX", 9, 1, 9, 2, 97.0))
sketch3.addConstraint(Sketcher.Constraint("DistanceX", 19, 2, 19, 1, 10.0))
sketch3.addConstraint(Sketcher.Constraint("DistanceX", 34, 2, 34, 1, 4.0))
sketch3.addConstraint(Sketcher.Constraint("DistanceY", 0, 2, 0, 1, 7.0))
sketch3.addConstraint(Sketcher.Constraint("Angle", 17, Q("20 deg")))
sketch3.addConstraint(Sketcher.Constraint("DistanceX", 13, 1, 13, 2, 1.2))
sketch3.addConstraint(Sketcher.Constraint("DistanceY", 3, 1, 3, 2, 4.9))
sketch3.addConstraint(Sketcher.Constraint("DistanceX", -1, 1, 17, 2, 112.0))
sketch3.addConstraint(Sketcher.Constraint("DistanceY", 8, 1, 8, 2, 1.85))
sketch3.addConstraint(Sketcher.Constraint("DistanceY", 14, 2, 14, 1, 0.25))
sketch3.addConstraint(Sketcher.Constraint("DistanceY", 7, 2, 10, 2, 1.6))
sketch3.addConstraint(Sketcher.Constraint("DistanceX", 16, 1, 16, 2, 4.99784))
sketch3.addConstraint(Sketcher.Constraint("DistanceY", 12, 1, 12, 2, 0.496048))
sketch3.addConstraint(Sketcher.Constraint("DistanceY", -1, 1, 1, 3, 8.082039))
pad3 = body2.newObject("PartDesign::Pad", "Pad002")
pad3.Profile = sketch3
pad3.Length = 2.25
body3 = doc.addObject("PartDesign::Body", "Body002")

# Sketch on XY plane
sketch4 = body3.newObject("Sketcher::SketchObject", "Sketch003")
sketch4.AttachmentSupport = (doc.getObject("XY_Plane002"), [""])
sketch4.MapMode = "FlatFace"
add_polygon(sketch4, [(0, 51.95653), (0, 39.45653), (80, 39.45653), (80, 51.95653)])  # lines 0-3
add_polygon(sketch4, [(8.4, 43.75653), (6.6, 43.75653), (6.6, 47.65653), (8.4, 47.65653)])  # lines 4-7
add_polygon(sketch4, [(21.4, 43.75653), (19.6, 43.75653), (19.6, 47.65653), (21.4, 47.65653)])  # lines 8-11
add_polygon(sketch4, [(34.4, 43.75653), (32.6, 43.75653), (32.6, 47.65653), (34.4, 47.65653)])  # lines 12-15
add_polygon(sketch4, [(47.4, 43.75653), (45.6, 43.75653), (45.6, 47.65653), (47.4, 47.65653)])  # lines 16-19
add_polygon(sketch4, [(60.4, 43.75653), (58.6, 43.75653), (58.6, 47.65653), (60.4, 47.65653)])  # lines 20-23
add_polygon(sketch4, [(73.4, 43.75653), (71.6, 43.75653), (71.6, 47.65653), (73.4, 47.65653)])  # lines 24-27
sketch4.addConstraint(Sketcher.Constraint("Vertical", 0))
sketch4.addConstraint(Sketcher.Constraint("Horizontal", 1))
sketch4.addConstraint(Sketcher.Constraint("Vertical", 2))
sketch4.addConstraint(Sketcher.Constraint("Horizontal", 3))
sketch4.addConstraint(Sketcher.Constraint("Horizontal", 4))
sketch4.addConstraint(Sketcher.Constraint("Vertical", 5))
sketch4.addConstraint(Sketcher.Constraint("Horizontal", 6))
sketch4.addConstraint(Sketcher.Constraint("Vertical", 7))
sketch4.addConstraint(Sketcher.Constraint("Horizontal", 8))
sketch4.addConstraint(Sketcher.Constraint("Vertical", 9))
sketch4.addConstraint(Sketcher.Constraint("Horizontal", 10))
sketch4.addConstraint(Sketcher.Constraint("Vertical", 11))
sketch4.addConstraint(Sketcher.Constraint("Horizontal", 12))
sketch4.addConstraint(Sketcher.Constraint("Vertical", 13))
sketch4.addConstraint(Sketcher.Constraint("Horizontal", 14))
sketch4.addConstraint(Sketcher.Constraint("Vertical", 15))
sketch4.addConstraint(Sketcher.Constraint("Horizontal", 16))
sketch4.addConstraint(Sketcher.Constraint("Vertical", 17))
sketch4.addConstraint(Sketcher.Constraint("Horizontal", 18))
sketch4.addConstraint(Sketcher.Constraint("Vertical", 19))
sketch4.addConstraint(Sketcher.Constraint("Horizontal", 20))
sketch4.addConstraint(Sketcher.Constraint("Vertical", 21))
sketch4.addConstraint(Sketcher.Constraint("Horizontal", 22))
sketch4.addConstraint(Sketcher.Constraint("Vertical", 23))
sketch4.addConstraint(Sketcher.Constraint("Horizontal", 24))
sketch4.addConstraint(Sketcher.Constraint("Vertical", 25))
sketch4.addConstraint(Sketcher.Constraint("Horizontal", 26))
sketch4.addConstraint(Sketcher.Constraint("Vertical", 27))
sketch4.addConstraint(Sketcher.Constraint("PointOnObject", 0, 2, -2))
sketch4.addConstraint(Sketcher.Constraint("Horizontal", 7, 2, 8, 2))
sketch4.addConstraint(Sketcher.Constraint("Horizontal", 6, 2, 9, 2))
sketch4.addConstraint(Sketcher.Constraint("Horizontal", 11, 2, 12, 2))
sketch4.addConstraint(Sketcher.Constraint("Horizontal", 10, 2, 13, 2))
sketch4.addConstraint(Sketcher.Constraint("Horizontal", 15, 2, 16, 2))
sketch4.addConstraint(Sketcher.Constraint("Horizontal", 14, 2, 17, 2))
sketch4.addConstraint(Sketcher.Constraint("Horizontal", 19, 2, 20, 2))
sketch4.addConstraint(Sketcher.Constraint("Horizontal", 18, 2, 21, 2))
sketch4.addConstraint(Sketcher.Constraint("Horizontal", 23, 2, 24, 2))
sketch4.addConstraint(Sketcher.Constraint("Horizontal", 22, 2, 25, 2))
sketch4.addConstraint(Sketcher.Constraint("Equal", 6, 8))
sketch4.addConstraint(Sketcher.Constraint("Equal", 10, 12))
sketch4.addConstraint(Sketcher.Constraint("Equal", 14, 16))
sketch4.addConstraint(Sketcher.Constraint("Equal", 18, 20))
sketch4.addConstraint(Sketcher.Constraint("Equal", 22, 24))
sketch4.addConstraint(Sketcher.Constraint("DistanceX", 1, 1, 1, 2, 80.0))
sketch4.addConstraint(Sketcher.Constraint("DistanceX", 4, 2, 4, 1, 1.8))
sketch4.addConstraint(Sketcher.Constraint("DistanceY", 0, 2, 0, 1, 12.5))
sketch4.addConstraint(Sketcher.Constraint("DistanceY", 5, 1, 5, 2, 3.9))
sketch4.addConstraint(Sketcher.Constraint("DistanceX", 4, 2, 8, 2, 13.0))
sketch4.addConstraint(Sketcher.Constraint("DistanceX", 8, 2, 12, 2, 13.0))
sketch4.addConstraint(Sketcher.Constraint("DistanceX", 12, 2, 16, 2, 13.0))
sketch4.addConstraint(Sketcher.Constraint("DistanceX", 16, 2, 20, 2, 13.0))
sketch4.addConstraint(Sketcher.Constraint("DistanceX", 20, 2, 24, 2, 13.0))
sketch4.addConstraint(Sketcher.Constraint("DistanceX", -1, 1, 4, 2, 6.6))
sketch4.addConstraint(Sketcher.Constraint("DistanceY", 0, 2, 4, 2, 4.3))
sketch4.addConstraint(Sketcher.Constraint("DistanceY", -1, 1, 0, 2, 39.45653))
pad4 = body3.newObject("PartDesign::Pad", "Pad003")
pad4.Profile = sketch4
pad4.Length = 1

doc.recompute()
